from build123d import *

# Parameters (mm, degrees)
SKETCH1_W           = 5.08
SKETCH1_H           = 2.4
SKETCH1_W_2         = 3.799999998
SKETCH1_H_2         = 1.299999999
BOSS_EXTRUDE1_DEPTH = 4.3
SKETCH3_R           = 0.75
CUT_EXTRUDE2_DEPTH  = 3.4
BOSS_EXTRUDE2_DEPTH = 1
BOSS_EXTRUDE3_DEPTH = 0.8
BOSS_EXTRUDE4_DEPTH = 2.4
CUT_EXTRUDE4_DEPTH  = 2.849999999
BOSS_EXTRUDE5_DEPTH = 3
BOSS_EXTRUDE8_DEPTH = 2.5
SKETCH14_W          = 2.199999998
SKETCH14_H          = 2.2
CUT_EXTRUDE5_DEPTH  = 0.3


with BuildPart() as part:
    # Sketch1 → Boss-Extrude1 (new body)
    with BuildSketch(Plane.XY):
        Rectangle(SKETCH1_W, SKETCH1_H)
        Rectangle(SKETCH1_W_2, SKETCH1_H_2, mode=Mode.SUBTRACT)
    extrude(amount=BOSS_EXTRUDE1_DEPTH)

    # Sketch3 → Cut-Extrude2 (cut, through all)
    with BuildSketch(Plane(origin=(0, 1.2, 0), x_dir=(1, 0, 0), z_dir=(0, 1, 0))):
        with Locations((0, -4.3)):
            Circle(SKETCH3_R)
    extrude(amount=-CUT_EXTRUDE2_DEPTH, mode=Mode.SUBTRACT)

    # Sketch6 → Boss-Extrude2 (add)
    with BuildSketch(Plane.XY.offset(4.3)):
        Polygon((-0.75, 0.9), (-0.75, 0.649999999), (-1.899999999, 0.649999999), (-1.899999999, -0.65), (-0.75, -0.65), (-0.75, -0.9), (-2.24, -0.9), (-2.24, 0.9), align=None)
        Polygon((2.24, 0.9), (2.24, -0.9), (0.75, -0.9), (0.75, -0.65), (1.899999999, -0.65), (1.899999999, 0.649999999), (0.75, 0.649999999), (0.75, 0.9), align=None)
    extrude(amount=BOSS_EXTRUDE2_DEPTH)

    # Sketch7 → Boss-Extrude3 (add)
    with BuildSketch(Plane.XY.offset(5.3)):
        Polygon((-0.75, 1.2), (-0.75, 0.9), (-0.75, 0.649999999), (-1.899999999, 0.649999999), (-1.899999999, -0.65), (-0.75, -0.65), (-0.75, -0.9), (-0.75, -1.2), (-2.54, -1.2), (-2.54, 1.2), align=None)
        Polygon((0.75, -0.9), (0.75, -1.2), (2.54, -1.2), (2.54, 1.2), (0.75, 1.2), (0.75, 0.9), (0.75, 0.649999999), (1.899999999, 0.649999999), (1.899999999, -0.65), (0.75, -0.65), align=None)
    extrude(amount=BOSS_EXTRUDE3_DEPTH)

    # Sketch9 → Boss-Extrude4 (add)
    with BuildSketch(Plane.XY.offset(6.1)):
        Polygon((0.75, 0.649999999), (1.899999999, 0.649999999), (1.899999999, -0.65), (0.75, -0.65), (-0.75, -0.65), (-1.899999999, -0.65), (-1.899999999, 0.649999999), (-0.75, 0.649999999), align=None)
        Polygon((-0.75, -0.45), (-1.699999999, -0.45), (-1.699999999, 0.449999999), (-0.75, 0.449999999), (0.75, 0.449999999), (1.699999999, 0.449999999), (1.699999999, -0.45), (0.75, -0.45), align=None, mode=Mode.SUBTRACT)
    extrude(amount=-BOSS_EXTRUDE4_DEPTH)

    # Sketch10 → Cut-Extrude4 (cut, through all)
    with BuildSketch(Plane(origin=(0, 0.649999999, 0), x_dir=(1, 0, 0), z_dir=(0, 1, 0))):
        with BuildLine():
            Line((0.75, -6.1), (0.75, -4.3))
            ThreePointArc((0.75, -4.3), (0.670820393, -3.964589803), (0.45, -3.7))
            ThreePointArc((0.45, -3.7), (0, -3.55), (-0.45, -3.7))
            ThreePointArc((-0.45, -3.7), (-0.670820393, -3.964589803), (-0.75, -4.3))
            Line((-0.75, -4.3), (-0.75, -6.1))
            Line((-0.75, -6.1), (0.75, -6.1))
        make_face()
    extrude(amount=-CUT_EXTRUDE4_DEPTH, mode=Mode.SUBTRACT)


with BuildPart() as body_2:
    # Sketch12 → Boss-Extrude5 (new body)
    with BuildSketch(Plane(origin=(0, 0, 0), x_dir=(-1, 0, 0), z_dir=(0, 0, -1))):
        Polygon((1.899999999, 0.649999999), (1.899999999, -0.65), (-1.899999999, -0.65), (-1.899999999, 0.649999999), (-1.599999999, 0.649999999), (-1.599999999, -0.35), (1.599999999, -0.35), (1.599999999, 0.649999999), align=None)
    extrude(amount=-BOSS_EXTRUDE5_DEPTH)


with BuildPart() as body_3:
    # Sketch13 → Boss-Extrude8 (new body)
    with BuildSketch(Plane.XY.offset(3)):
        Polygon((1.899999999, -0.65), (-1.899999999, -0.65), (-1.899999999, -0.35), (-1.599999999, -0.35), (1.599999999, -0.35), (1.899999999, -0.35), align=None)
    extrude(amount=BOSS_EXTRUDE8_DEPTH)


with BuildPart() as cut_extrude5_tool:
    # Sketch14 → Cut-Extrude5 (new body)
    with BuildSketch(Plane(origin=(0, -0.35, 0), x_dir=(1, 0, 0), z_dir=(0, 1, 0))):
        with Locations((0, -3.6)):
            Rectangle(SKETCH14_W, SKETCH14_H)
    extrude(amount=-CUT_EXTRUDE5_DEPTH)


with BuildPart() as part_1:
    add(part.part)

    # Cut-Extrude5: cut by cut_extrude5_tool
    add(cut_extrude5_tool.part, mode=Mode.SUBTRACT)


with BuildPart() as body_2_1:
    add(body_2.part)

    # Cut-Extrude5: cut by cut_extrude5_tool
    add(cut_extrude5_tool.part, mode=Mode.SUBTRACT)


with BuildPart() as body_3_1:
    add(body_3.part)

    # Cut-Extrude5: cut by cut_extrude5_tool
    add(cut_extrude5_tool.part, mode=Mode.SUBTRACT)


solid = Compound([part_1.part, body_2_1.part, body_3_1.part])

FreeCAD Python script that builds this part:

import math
import FreeCAD as App
import Part
import Sketcher
from FreeCAD import Vector


def add_polygon(sketch, points):
    """Adds a closed chain of lines whose ends are joined by coincident constraints."""
    first, n = sketch.GeometryCount, len(points)
    for a, b in zip(points, points[1:] + points[:1]):
        sketch.addGeometry(Part.LineSegment(App.Vector(*a, 0), App.Vector(*b, 0)), False)
    for i in range(n):
        sketch.addConstraint(Sketcher.Constraint("Coincident", first + i, 2, first + (i + 1) % n, 1))

doc = App.newDocument("Part")
body = doc.addObject("PartDesign::Body", "Body")

# Sketch on XY plane
sketch1 = body.newObject("Sketcher::SketchObject", "Sketch")
sketch1.AttachmentSupport = (doc.getObject("XY_Plane"), [""])
sketch1.MapMode = "FlatFace"
add_polygon(sketch1, [(-2.5, 1.2), (-2.5, -1.2), (2.5, -1.2), (2.5, 1.2)])  # lines 0-3
add_polygon(sketch1, [(1.9, -0.6), (-1.9, -0.6), (-1.9, 0.6), (1.9, 0.6)])  # lines 4-7
sketch1.addConstraint(Sketcher.Constraint("Vertical", 0))
sketch1.addConstraint(Sketcher.Constraint("Horizontal", 1))
sketch1.addConstraint(Sketcher.Constraint("Vertical", 2))
sketch1.addConstraint(Sketcher.Constraint("Horizontal", 3))
sketch1.addConstraint(Sketcher.Constraint("Horizontal", 4))
sketch1.addConstraint(Sketcher.Constraint("Vertical", 5))
sketch1.addConstraint(Sketcher.Constraint("Horizontal", 6))
sketch1.addConstraint(Sketcher.Constraint("Vertical", 7))
sketch1.addConstraint(Sketcher.Constraint("Symmetric", 0, 2, 2, 2, -1, 1))
sketch1.addConstraint(Sketcher.Constraint("Symmetric", 4, 2, 6, 2, -1, 1))
sketch1.addConstraint(Sketcher.Constraint("DistanceX", 4, 2, 4, 1, 3.8))
sketch1.addConstraint(Sketcher.Constraint("DistanceY", 0, 2, 0, 1, 2.4))
sketch1.addConstraint(Sketcher.Constraint("DistanceY", 5, 1, 5, 2, 1.3))
sketch1.addConstraint(Sketcher.Constraint("DistanceX", 1, 1, 1, 2, 5.08))
pad1 = body.newObject("PartDesign::Pad", "Pad")
pad1.Profile = sketch1
pad1.Length = 4.3

# Sketch on XZ plane
sketch2 = body.newObject("Sketcher::SketchObject", "Sketch001")
sketch2.AttachmentSupport = (doc.getObject("XZ_Plane"), [""])
sketch2.MapMode = "FlatFace"
sketch2.AttachmentOffset = App.Placement(Vector(0, 0, -1.2), App.Rotation())
sketch2.addGeometry(Part.Circle(Vector(0, 4.3, 0), Vector(0, 0, 1), 0.8), False)
sketch2.addConstraint(Sketcher.Constraint("PointOnObject", 0, 3, -2))
sketch2.addConstraint(Sketcher.Constraint("Diameter", 0, 1.5))
sketch2.addConstraint(Sketcher.Constraint("DistanceY", -1, 1, 0, 3, 4.3))
pocket1 = body.newObject("PartDesign::Pocket", "Pocket")
pocket1.Profile = sketch2
pocket1.Type = "ThroughAll"
pocket1.Reversed = True

# Sketch on XY plane
sketch3 = body.newObject("Sketcher::SketchObject", "Sketch002")
sketch3.AttachmentSupport = (doc.getObject("XY_Plane"), [""])
sketch3.MapMode = "FlatFace"
sketch3.AttachmentOffset = App.Placement(Vector(0, 0, 4.3), App.Rotation())
add_polygon(sketch3, [(-0.75, 0.65), (-0.75, 0.9), (-2.24, 0.9), (-2.24, -0.9), (-0.75, -0.9), (-0.75, -0.65), (-1.9, -0.65), (-1.9, 0.65)])  # lines 0-7
add_polygon(sketch3, [(2.24, -0.9), (2.24, 0.9), (0.75, 0.9), (0.75, 0.65), (1.9, 0.65), (1.9, -0.65), (0.75, -0.65), (0.75, -0.9)])  # lines 8-15
sketch3.addConstraint(Sketcher.Constraint("Vertical", 0))
sketch3.addConstraint(Sketcher.Constraint("Horizontal", 1))
sketch3.addConstraint(Sketcher.Constraint("Vertical", 2))
sketch3.addConstraint(Sketcher.Constraint("Horizontal", 3))
sketch3.addConstraint(Sketcher.Constraint("Vertical", 4))
sketch3.addConstraint(Sketcher.Constraint("Horizontal", 5))
sketch3.addConstraint(Sketcher.Constraint("Vertical", 6))
sketch3.addConstraint(Sketcher.Constraint("Horizontal", 7))
sketch3.addConstraint(Sketcher.Constraint("Vertical", 8))
sketch3.addConstraint(Sketcher.Constraint("Horizontal", 9))
sketch3.addConstraint(Sketcher.Constraint("Vertical", 10))
sketch3.addConstraint(Sketcher.Constraint("Horizontal", 11))
sketch3.addConstraint(Sketcher.Constraint("Vertical", 12))
sketch3.addConstraint(Sketcher.Constraint("Horizontal", 13))
sketch3.addConstraint(Sketcher.Constraint("Vertical", 14))
sketch3.addConstraint(Sketcher.Constraint("Horizontal", 15))
sketch3.addConstraint(Sketcher.Constraint("Symmetric", 2, 2, 8, 2, -1, 1))
sketch3.addConstraint(Sketcher.Constraint("Symmetric", 4, 2, 10, 2, -1, 1))
sketch3.addConstraint(Sketcher.Constraint("Symmetric", 6, 2, 12, 2, -1, 1))
sketch3.addConstraint(Sketcher.Constraint("Symmetric", 0, 2, 14, 2, -1, 1))
sketch3.addConstraint(Sketcher.Constraint("Symmetric", 0, 2, 9, 2, -2))
sketch3.addConstraint(Sketcher.Constraint("Horizontal", 7, 2, 10, 2))
sketch3.addConstraint(Sketcher.Constraint("DistanceY", 2, 2, 2, 1, 1.8))
sketch3.addConstraint(Sketcher.Constraint("DistanceY", 6, 1, 6, 2, 1.3))
sketch3.addConstraint(Sketcher.Constraint("DistanceX", 1, 2, 1, 1, 1.49))
sketch3.addConstraint(Sketcher.Constraint("DistanceX", 5, 2, 5, 1, 1.15))
sketch3.addConstraint(Sketcher.Constraint("DistanceX", 5, 2, -1, 1, 1.9))
pad2 = body.newObject("PartDesign::Pad", "Pad001")
pad2.Profile = sketch3
pad2.Length = 1

# Sketch on XY plane
sketch4 = body.newObject("Sketcher::SketchObject", "Sketch003")
sketch4.AttachmentSupport = (doc.getObject("XY_Plane"), [""])
sketch4.MapMode = "FlatFace"
sketch4.AttachmentOffset = App.Placement(Vector(0, 0, 5.3), App.Rotation())
add_polygon(sketch4, [(-0.8, 0.6), (-0.8, 1.2), (-2.5, 1.2), (-2.5, -1.2), (-0.8, -1.2), (-0.8, -0.7), (-1.9, -0.7), (-1.9, 0.6)])  # lines 0-7
add_polygon(sketch4, [(0.8, -1.2), (2.5, -1.2), (2.5, 1.2), (0.8, 1.2), (0.8, 0.6), (1.9, 0.6), (1.9, -0.7), (0.8, -0.7)])  # lines 8-15
sketch4.addConstraint(Sketcher.Constraint("Vertical", 0))
sketch4.addConstraint(Sketcher.Constraint("Horizontal", 1))
sketch4.addConstraint(Sketcher.Constraint("Vertical", 2))
sketch4.addConstraint(Sketcher.Constraint("Horizontal", 3))
sketch4.addConstraint(Sketcher.Constraint("Vertical", 4))
sketch4.addConstraint(Sketcher.Constraint("Horizontal", 5))
sketch4.addConstraint(Sketcher.Constraint("Vertical", 6))
sketch4.addConstraint(Sketcher.Constraint("Horizontal", 7))
sketch4.addConstraint(Sketcher.Constraint("Horizontal", 8))
sketch4.addConstraint(Sketcher.Constraint("Vertical", 9))
sketch4.addConstraint(Sketcher.Constraint("Horizontal", 10))
sketch4.addConstraint(Sketcher.Constraint("Vertical", 11))
sketch4.addConstraint(Sketcher.Constraint("Horizontal", 12))
sketch4.addConstraint(Sketcher.Constraint("Vertical", 13))
sketch4.addConstraint(Sketcher.Constraint("Horizontal", 14))
sketch4.addConstraint(Sketcher.Constraint("Vertical", 15))
sketch4.addConstraint(Sketcher.Constraint("Symmetric", 1, 2, 8, 2, -1, 1))
sketch4.addConstraint(Sketcher.Constraint("Symmetric", 3, 2, 10, 2, -1, 1))
sketch4.addConstraint(Sketcher.Constraint("Symmetric", 5, 2, 12, 2, -1, 1))
sketch4.addConstraint(Sketcher.Constraint("Symmetric", 7, 2, 14, 2, -1, 1))
sketch4.addConstraint(Sketcher.Constraint("Symmetric", 0, 2, 10, 2, -2))
sketch4.addConstraint(Sketcher.Constraint("Horizontal", 7, 2, 11, 2))
sketch4.addConstraint(Sketcher.Constraint("DistanceY", 2, 2, 2, 1, 2.4))
sketch4.addConstraint(Sketcher.Constraint("DistanceY", 6, 1, 6, 2, 1.3))
sketch4.addConstraint(Sketcher.Constraint("DistanceX", 1, 2, 1, 1, 1.79))
sketch4.addConstraint(Sketcher.Constraint("DistanceX", 5, 2, 5, 1, 1.15))
sketch4.addConstraint(Sketcher.Constraint("DistanceX", 5, 2, -1, 1, 1.9))
pad3 = body.newObject("PartDesign::Pad", "Pad002")
pad3.Profile = sketch4
pad3.Length = 0.8

# Sketch on XY plane
sketch5 = body.newObject("Sketcher::SketchObject", "Sketch004")
sketch5.AttachmentSupport = (doc.getObject("XY_Plane"), [""])
sketch5.MapMode = "FlatFace"
sketch5.AttachmentOffset = App.Placement(Vector(0, 0, 6.1), App.Rotation())
add_polygon(sketch5, [(1.9, 0.6), (-1.9, 0.6), (-1.9, -0.7), (1.9, -0.7)])  # lines 0-3
add_polygon(sketch5, [(-1.7, -0.5), (-1.7, 0.4), (1.7, 0.4), (1.7, -0.5)])  # lines 4-7
sketch5.addConstraint(Sketcher.Constraint("Horizontal", 0))
sketch5.addConstraint(Sketcher.Constraint("Vertical", 1))
sketch5.addConstraint(Sketcher.Constraint("Horizontal", 2))
sketch5.addConstraint(Sketcher.Constraint("Vertical", 3))
sketch5.addConstraint(Sketcher.Constraint("Vertical", 4))
sketch5.addConstraint(Sketcher.Constraint("Horizontal", 5))
sketch5.addConstraint(Sketcher.Constraint("Vertical", 6))
sketch5.addConstraint(Sketcher.Constraint("Horizontal", 7))
sketch5.addConstraint(Sketcher.Constraint("Symmetric", 0, 2, 2, 2, -1, 1))
sketch5.addConstraint(Sketcher.Constraint("Symmetric", 4, 2, 6, 2, -1, 1))
sketch5.addConstraint(Sketcher.Constraint("DistanceX", 0, 2, 0, 1, 3.8))
sketch5.addConstraint(Sketcher.Constraint("DistanceX", 5, 1, 5, 2, 3.4))
sketch5.addConstraint(Sketcher.Constraint("DistanceY", 1, 2, 1, 1, 1.3))
sketch5.addConstraint(Sketcher.Constraint("DistanceY", 4, 1, 4, 2, 0.9))
pad4 = body.newObject("PartDesign::Pad", "Pad003")
pad4.Profile = sketch5
pad4.Length = 2.4
pad4.Reversed = True

# Sketch on XZ plane
sketch6 = body.newObject("Sketcher::SketchObject", "Sketch005")
sketch6.AttachmentSupport = (doc.getObject("XZ_Plane"), [""])
sketch6.MapMode = "FlatFace"
sketch6.AttachmentOffset = App.Placement(Vector(0, 0, -0.65), App.Rotation())
sketch6.addGeometry(Part.LineSegment(Vector(0.8, 6.1, 0), Vector(0.8, 4.3, 0)), False)
sketch6.addGeometry(Part.ArcOfCircle(Part.Circle(Vector(0, 4.3, 0), Vector(0, 0, 1), 0.8), math.radians(-53), math.radians(0)), False)
sketch6.addGeometry(Part.ArcOfCircle(Part.Circle(Vector(0, 4.3, 0), Vector(0, 0, 1), 0.8), math.radians(-127), math.radians(-53)), False)
sketch6.addGeometry(Part.ArcOfCircle(Part.Circle(Vector(0, 4.3, 0), Vector(0, 0, 1), 0.8), math.radians(180), math.radians(233)), False)
sketch6.addGeometry(Part.LineSegment(Vector(-0.8, 4.3, 0), Vector(-0.8, 6.1, 0)), False)
sketch6.addGeometry(Part.LineSegment(Vector(-0.8, 6.1, 0), Vector(0.8, 6.1, 0)), False)
sketch6.addConstraint(Sketcher.Constraint("Tangent", 0, 2, 1, 2))
sketch6.addConstraint(Sketcher.Constraint("Tangent", 1, 1, 2, 2))
sketch6.addConstraint(Sketcher.Constraint("Tangent", 2, 1, 3, 2))
sketch6.addConstraint(Sketcher.Constraint("Tangent", 3, 1, 4, 1))
sketch6.addConstraint(Sketcher.Constraint("Coincident", 4, 2, 5, 1))
sketch6.addConstraint(Sketcher.Constraint("Coincident", 5, 2, 0, 1))
sketch6.addConstraint(Sketcher.Constraint("Vertical", 0))
sketch6.addConstraint(Sketcher.Constraint("Vertical", 4))
sketch6.addConstraint(Sketcher.Constraint("Horizontal", 5))
sketch6.addConstraint(Sketcher.Constraint("Coincident", 3, 3, 1, 3))
sketch6.addConstraint(Sketcher.Constraint("Symmetric", 1, 1, 2, 1, -2))
sketch6.addConstraint(Sketcher.Constraint("Radius", 1, 0.75))
sketch6.addConstraint(Sketcher.Constraint("DistanceY", 0, 2, 0, 1, 1.8))
sketch6.addConstraint(Sketcher.Constraint("DistanceY", -1, 1, 1, 3, 4.3))
sketch6.addConstraint(Sketcher.Constraint("DistanceY", -1, 1, 1, 1, 3.7))
pocket2 = body.newObject("PartDesign::Pocket", "Pocket001")
pocket2.Profile = sketch6
pocket2.Type = "ThroughAll"
pocket2.Reversed = True
body2 = doc.addObject("PartDesign::Body", "Body001")

# Sketch on XY plane
sketch7 = body2.newObject("Sketcher::SketchObject", "Sketch006")
sketch7.AttachmentSupport = (doc.getObject("XY_Plane001"), [""])
sketch7.MapMode = "FlatFace"
add_polygon(sketch7, [(-1.9, -0.65), (-1.9, 0.65), (-1.6, 0.65), (-1.6, -0.35), (1.6, -0.35), (1.6, 0.65), (1.9, 0.65), (1.9, -0.65)])  # lines 0-7
sketch7.addConstraint(Sketcher.Constraint("Vertical", 0))
sketch7.addConstraint(Sketcher.Constraint("Horizontal", 1))
sketch7.addConstraint(Sketcher.Constraint("Vertical", 2))
sketch7.addConstraint(Sketcher.Constraint("Horizontal", 3))
sketch7.addConstraint(Sketcher.Constraint("Vertical", 4))
sketch7.addConstraint(Sketcher.Constraint("Horizontal", 5))
sketch7.addConstraint(Sketcher.Constraint("Vertical", 6))
sketch7.addConstraint(Sketcher.Constraint("Horizontal", 7))
sketch7.addConstraint(Sketcher.Constraint("Symmetric", 0, 2, 6, 2, -1, 1))
sketch7.addConstraint(Sketcher.Constraint("Symmetric", 1, 2, 4, 2, -2))
sketch7.addConstraint(Sketcher.Constraint("DistanceY", 2, 2, 2, 1, 1.0))
sketch7.addConstraint(Sketcher.Constraint("DistanceX", 1, 1, 1, 2, 0.3))
sketch7.addConstraint(Sketcher.Constraint("DistanceX", 3, 1, 3, 2, 3.2))
sketch7.addConstraint(Sketcher.Constraint("DistanceY", 0, 1, 0, 2, 1.3))
pad5 = body2.newObject("PartDesign::Pad", "Pad004")
pad5.Profile = sketch7
pad5.Length = 3
body3 = doc.addObject("PartDesign::Body", "Body002")

# Sketch on XY plane
sketch8 = body3.newObject("Sketcher::SketchObject", "Sketch007")
sketch8.AttachmentSupport = (doc.getObject("XY_Plane002"), [""])
sketch8.MapMode = "FlatFace"
sketch8.AttachmentOffset = App.Placement(Vector(0, 0, 3), App.Rotation())
add_polygon(sketch8, [(-1.9, -0.65), (1.9, -0.65), (1.9, -0.35), (-1.9, -0.35)])  # lines 0-3
sketch8.addConstraint(Sketcher.Constraint("Horizontal", 0))
sketch8.addConstraint(Sketcher.Constraint("Vertical", 1))
sketch8.addConstraint(Sketcher.Constraint("Horizontal", 2))
sketch8.addConstraint(Sketcher.Constraint("Vertical", 3))
sketch8.addConstraint(Sketcher.Constraint("DistanceX", 0, 1, 0, 2, 3.8))
sketch8.addConstraint(Sketcher.Constraint("DistanceY", 1, 1, 1, 2, 0.3))
sketch8.addConstraint(Sketcher.Constraint("DistanceX", -1, 1, 0, 2, 1.9))
sketch8.addConstraint(Sketcher.Constraint("DistanceY", 0, 2, -1, 1, 0.65))
pad6 = body3.newObject("PartDesign::Pad", "Pad005")
pad6.Profile = sketch8
pad6.Length = 2.5
body4 = doc.addObject("PartDesign::Body", "Body003")

# Sketch on XZ plane
sketch9 = body4.newObject("Sketcher::SketchObject", "Sketch008")
sketch9.AttachmentSupport = (doc.getObject("XZ_Plane003"), [""])
sketch9.MapMode = "FlatFace"
sketch9.AttachmentOffset = App.Placement(Vector(0, 0, 0.35), App.Rotation())
add_polygon(sketch9, [(-1.1, 2.5), (-1.1, 4.7), (1.1, 4.7), (1.1, 2.5)])  # lines 0-3
sketch9.addConstraint(Sketcher.Constraint("Vertical", 0))
sketch9.addConstraint(Sketcher.Constraint("Horizontal", 1))
sketch9.addConstraint(Sketcher.Constraint("Vertical", 2))
sketch9.addConstraint(Sketcher.Constraint("Horizontal", 3))
sketch9.addConstraint(Sketcher.Constraint("Equal", 3, 0))
sketch9.addConstraint(Sketcher.Constraint("DistanceX", 1, 1, 1, 2, 2.2))
sketch9.addConstraint(Sketcher.Constraint("DistanceX", 0, 2, -1, 1, 1.1))
sketch9.addConstraint(Sketcher.Constraint("DistanceY", -1, 1, 0, 2, 4.7))
pad7 = body4.newObject("PartDesign::Pad", "Pad006")
pad7.Profile = sketch9
pad7.Length = 0.3
doc.recompute()

body5 = doc.addObject("PartDesign::Body", "Body004")
body5.BaseFeature = body4
boolean = body.newObject("PartDesign::Boolean", "Boolean")
boolean.Type = "Cut"
boolean.addObjects([body5])
doc.recompute()

body6 = doc.addObject("PartDesign::Body", "Body005")
body6.BaseFeature = body4
boolean2 = body2.newObject("PartDesign::Boolean", "Boolean001")
boolean2.Type = "Cut"
boolean2.addObjects([body6])
doc.recompute()

boolean3 = body3.newObject("PartDesign::Boolean", "Boolean002")
boolean3.Type = "Cut"
boolean3.addObjects([body4])

doc.recompute()
